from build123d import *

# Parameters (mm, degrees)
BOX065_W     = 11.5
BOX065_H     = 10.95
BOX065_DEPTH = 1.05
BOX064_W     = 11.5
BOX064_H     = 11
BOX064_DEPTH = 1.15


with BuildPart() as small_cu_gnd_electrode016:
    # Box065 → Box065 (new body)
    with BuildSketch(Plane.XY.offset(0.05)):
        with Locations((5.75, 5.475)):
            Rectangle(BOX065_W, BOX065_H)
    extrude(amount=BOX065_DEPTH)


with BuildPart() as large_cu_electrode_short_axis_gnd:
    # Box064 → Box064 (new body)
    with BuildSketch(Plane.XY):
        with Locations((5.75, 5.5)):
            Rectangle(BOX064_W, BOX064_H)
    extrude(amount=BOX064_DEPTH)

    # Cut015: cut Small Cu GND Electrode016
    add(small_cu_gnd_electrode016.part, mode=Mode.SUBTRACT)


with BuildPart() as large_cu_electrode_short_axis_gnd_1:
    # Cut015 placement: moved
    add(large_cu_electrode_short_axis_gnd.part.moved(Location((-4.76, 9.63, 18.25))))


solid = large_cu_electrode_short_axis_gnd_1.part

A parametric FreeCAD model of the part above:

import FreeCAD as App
import Part
import Sketcher

V = App.Vector
Q = App.Units.Quantity


def add_polygon(sketch, points):
    """Adds a closed chain of lines whose ends are joined by coincident constraints."""
    first, n = sketch.GeometryCount, len(points)
    for a, b in zip(points, points[1:] + points[:1]):
        sketch.addGeometry(Part.LineSegment(App.Vector(*a, 0), App.Vector(*b, 0)), False)
    for i in range(n):
        sketch.addConstraint(Sketcher.Constraint("Coincident", first + i, 2, first + (i + 1) % n, 1))

doc = App.newDocument("Part")
body = doc.addObject("PartDesign::Body", "Body")

# Sketch on XY plane
sketch1 = doc.addObject("Sketcher::SketchObject", "Sketch")
body.addObject(sketch1)
sketch1.AttachmentSupport = (doc.XY_Plane, [""])
sketch1.MapMode = "FlatFace"
sketch1.AttachmentOffset = App.Placement(V(0, 0, 0.05), App.Rotation())
add_polygon(sketch1, [(0, 11), (0, 0), (12, 0), (12, 11)])  # lines 0-3
sketch1.addConstraint(Sketcher.Constraint("Vertical", 0))
sketch1.addConstraint(Sketcher.Constraint("Horizontal", 1))
sketch1.addConstraint(Sketcher.Constraint("Vertical", 2))
sketch1.addConstraint(Sketcher.Constraint("Horizontal", 3))
sketch1.addConstraint(Sketcher.Constraint("Coincident", 0, 2, -1, 1))
sketch1.addConstraint(Sketcher.Constraint("DistanceX", 1, 1, 1, 2, Q("11.5 mm")))
sketch1.addConstraint(Sketcher.Constraint("DistanceY", 0, 2, 0, 1, Q("10.95 mm")))
pad1 = doc.addObject("PartDesign::Pad", "Pad")
body.addObject(pad1)
pad1.Profile = sketch1
pad1.Length = 1.05
body2 = doc.addObject("PartDesign::Body", "Body001")

# Sketch on XY plane
sketch2 = doc.addObject("Sketcher::SketchObject", "Sketch001")
body2.addObject(sketch2)
sketch2.AttachmentSupport = (doc.getObject("XY_Plane001"), [""])
sketch2.MapMode = "FlatFace"
add_polygon(sketch2, [(0, 11), (0, 0), (12, 0), (12, 11)])  # lines 0-3
sketch2.addConstraint(Sketcher.Constraint("Vertical", 0))
sketch2.addConstraint(Sketcher.Constraint("Horizontal", 1))
sketch2.addConstraint(Sketcher.Constraint("Vertical", 2))
sketch2.addConstraint(Sketcher.Constraint("Horizontal", 3))
sketch2.addConstraint(Sketcher.Constraint("Coincident", 0, 2, -1, 1))
sketch2.addConstraint(Sketcher.Constraint("DistanceY", 0, 2, 0, 1, Q("11 mm")))
sketch2.addConstraint(Sketcher.Constraint("DistanceX", 1, 1, 1, 2, Q("11.5 mm")))
pad2 = doc.addObject("PartDesign::Pad", "Pad001")
body2.addObject(pad2)
pad2.Profile = sketch2
pad2.Length = 1.15
doc.recompute()

boolean = doc.addObject("PartDesign::Boolean", "Boolean")
body2.addObject(boolean)
boolean.Type = "Cut"
boolean.addObjects([body])
body3 = doc.addObject("PartDesign::Body", "Body002")
doc.recompute()

body2.Placement = App.Placement(V(-4.76, 9.63, 18.25), App.Rotation(V(0, 0, 1), 0))
boolean2 = doc.addObject("PartDesign::Boolean", "Boolean001")
body3.addObject(boolean2)
boolean2.Type = "Fuse"
boolean2.addObjects([body2])

doc.recompute()
